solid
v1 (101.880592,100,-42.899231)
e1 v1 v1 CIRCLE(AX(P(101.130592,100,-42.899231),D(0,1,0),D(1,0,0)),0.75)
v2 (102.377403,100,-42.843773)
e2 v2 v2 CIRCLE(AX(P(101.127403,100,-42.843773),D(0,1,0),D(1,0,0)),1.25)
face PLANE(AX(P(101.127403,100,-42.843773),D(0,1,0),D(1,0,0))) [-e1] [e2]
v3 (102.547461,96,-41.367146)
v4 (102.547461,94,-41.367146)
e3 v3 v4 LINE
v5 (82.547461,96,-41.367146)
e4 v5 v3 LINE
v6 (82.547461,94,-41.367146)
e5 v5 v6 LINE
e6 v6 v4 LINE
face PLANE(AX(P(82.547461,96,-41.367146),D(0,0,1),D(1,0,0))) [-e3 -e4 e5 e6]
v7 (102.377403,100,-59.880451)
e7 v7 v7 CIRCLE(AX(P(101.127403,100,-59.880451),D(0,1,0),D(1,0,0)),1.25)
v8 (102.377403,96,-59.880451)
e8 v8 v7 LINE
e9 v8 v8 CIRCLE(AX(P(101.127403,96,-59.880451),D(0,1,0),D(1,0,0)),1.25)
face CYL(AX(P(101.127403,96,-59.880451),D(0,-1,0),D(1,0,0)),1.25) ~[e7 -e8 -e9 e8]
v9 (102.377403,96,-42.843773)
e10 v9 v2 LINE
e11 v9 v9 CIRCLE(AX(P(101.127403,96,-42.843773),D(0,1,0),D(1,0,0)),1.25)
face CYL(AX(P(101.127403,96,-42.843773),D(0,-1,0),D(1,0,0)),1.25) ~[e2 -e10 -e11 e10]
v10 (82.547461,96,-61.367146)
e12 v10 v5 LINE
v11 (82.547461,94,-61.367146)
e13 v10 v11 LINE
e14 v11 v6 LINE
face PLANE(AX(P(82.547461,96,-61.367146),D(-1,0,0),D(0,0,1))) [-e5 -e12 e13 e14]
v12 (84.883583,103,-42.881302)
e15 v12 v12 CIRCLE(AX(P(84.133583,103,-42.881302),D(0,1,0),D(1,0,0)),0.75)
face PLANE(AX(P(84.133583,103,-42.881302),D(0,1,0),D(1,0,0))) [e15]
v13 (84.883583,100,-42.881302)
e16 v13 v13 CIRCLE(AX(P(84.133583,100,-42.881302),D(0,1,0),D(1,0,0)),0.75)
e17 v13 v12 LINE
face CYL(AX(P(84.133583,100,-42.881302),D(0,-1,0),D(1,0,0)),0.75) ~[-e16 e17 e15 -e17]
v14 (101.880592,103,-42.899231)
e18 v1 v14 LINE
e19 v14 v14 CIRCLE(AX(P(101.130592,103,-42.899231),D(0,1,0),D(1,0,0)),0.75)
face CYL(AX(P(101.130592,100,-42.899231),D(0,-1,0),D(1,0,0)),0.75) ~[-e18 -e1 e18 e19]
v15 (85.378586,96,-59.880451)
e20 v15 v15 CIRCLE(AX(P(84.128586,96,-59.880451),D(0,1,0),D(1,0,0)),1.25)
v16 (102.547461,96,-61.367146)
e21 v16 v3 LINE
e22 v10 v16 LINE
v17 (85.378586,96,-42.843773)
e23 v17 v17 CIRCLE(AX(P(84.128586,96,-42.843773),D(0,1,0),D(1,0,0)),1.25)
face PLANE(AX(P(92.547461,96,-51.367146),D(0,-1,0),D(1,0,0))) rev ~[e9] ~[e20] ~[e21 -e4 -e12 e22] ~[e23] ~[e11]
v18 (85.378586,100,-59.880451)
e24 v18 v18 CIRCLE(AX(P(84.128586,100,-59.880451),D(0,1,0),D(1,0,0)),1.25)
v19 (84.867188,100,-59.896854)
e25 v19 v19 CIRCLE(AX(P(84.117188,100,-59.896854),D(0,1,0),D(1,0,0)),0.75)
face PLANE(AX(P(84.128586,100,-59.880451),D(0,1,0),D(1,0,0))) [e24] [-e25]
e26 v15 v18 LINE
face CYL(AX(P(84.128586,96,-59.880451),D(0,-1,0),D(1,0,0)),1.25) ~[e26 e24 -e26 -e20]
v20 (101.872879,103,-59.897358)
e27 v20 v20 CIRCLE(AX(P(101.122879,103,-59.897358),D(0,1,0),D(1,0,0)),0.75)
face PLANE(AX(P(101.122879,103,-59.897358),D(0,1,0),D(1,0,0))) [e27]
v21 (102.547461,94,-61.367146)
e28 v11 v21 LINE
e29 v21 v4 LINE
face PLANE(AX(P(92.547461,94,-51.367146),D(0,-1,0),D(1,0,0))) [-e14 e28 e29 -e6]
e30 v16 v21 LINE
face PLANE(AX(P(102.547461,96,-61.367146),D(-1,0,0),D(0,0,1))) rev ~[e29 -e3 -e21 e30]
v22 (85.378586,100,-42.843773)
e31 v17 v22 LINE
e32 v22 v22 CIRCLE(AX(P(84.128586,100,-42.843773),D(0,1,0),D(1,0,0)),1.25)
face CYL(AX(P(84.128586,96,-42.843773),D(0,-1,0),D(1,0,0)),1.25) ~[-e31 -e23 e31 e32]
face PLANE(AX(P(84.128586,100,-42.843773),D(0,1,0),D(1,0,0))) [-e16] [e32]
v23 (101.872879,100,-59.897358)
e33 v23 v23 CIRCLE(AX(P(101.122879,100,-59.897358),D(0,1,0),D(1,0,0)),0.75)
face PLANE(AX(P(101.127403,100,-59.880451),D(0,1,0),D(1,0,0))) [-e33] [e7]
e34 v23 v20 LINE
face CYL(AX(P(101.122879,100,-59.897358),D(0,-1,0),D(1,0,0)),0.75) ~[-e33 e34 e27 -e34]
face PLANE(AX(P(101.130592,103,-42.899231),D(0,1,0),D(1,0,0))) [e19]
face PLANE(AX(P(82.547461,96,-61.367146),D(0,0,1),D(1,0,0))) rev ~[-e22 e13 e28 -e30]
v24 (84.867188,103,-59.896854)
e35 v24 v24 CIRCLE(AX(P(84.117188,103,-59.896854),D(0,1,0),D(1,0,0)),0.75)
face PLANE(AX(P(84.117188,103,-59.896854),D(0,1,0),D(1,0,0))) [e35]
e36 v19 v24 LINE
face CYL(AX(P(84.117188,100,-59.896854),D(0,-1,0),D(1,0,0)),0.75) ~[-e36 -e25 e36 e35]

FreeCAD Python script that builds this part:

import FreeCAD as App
import Part
import Sketcher

V = App.Vector
Q = App.Units.Quantity


def add_polygon(sketch, points):
    """Adds a closed chain of lines whose ends are joined by coincident constraints."""
    first, n = sketch.GeometryCount, len(points)
    for a, b in zip(points, points[1:] + points[:1]):
        sketch.addGeometry(Part.LineSegment(App.Vector(*a, 0), App.Vector(*b, 0)), False)
    for i in range(n):
        sketch.addConstraint(Sketcher.Constraint("Coincident", first + i, 2, first + (i + 1) % n, 1))

doc = App.newDocument("Part")
body = doc.addObject("PartDesign::Body", "Body")

sketch1 = body.newObject("Sketcher::SketchObject", "Sketch")
sketch1.AttachmentSupport = (doc.getObject("XZ_Plane"), [""])
sketch1.MapMode = "FlatFace"
add_polygon(sketch1, [(82.547461, -41.367146), (82.547461, -61.367146), (102.547461, -61.367146), (102.547461, -41.367146)])
sketch1.addConstraint([
    Sketcher.Constraint("Vertical", 0),
    Sketcher.Constraint("Horizontal", 1),
    Sketcher.Constraint("Vertical", 2),
    Sketcher.Constraint("Horizontal", 3),
    Sketcher.Constraint("Equal", 3, 0),
    Sketcher.Constraint("DistanceX", 1, 1, 1, 2, Q("20 mm")),
    Sketcher.Constraint("DistanceX", -1, 1, 0, 2, Q("82.547461 mm")),
    Sketcher.Constraint("DistanceY", 0, 2, -1, 1, Q("61.367146 mm")),
])
pad1 = body.newObject("PartDesign::Pad", "Pad")
pad1.Profile = sketch1
pad1.Length = 2

sketch2 = body.newObject("Sketcher::SketchObject", "Sketch001")
sketch2.AttachmentSupport = (doc.getObject("XZ_Plane"), [""])
sketch2.MapMode = "FlatFace"
sketch2.addGeometry([
    Part.Circle(V(84.128586, -59.880451, 0), V(0, 0, 1), 1.25),
    Part.Circle(V(101.127403, -59.880451, 0), V(0, 0, 1), 1.25),
    Part.Circle(V(101.127403, -42.843773, 0), V(0, 0, 1), 1.25),
    Part.Circle(V(84.128586, -42.843773, 0), V(0, 0, 1), 1.25),
], False)
sketch2.addConstraint([
    Sketcher.Constraint("Equal", 0, 1),
    Sketcher.Constraint("Equal", 1, 2),
    Sketcher.Constraint("Equal", 2, 3),
    Sketcher.Constraint("Horizontal", 0, 3, 1, 3),
    Sketcher.Constraint("Horizontal", 2, 3, 3, 3),
    Sketcher.Constraint("Vertical", 1, 3, 2, 3),
    Sketcher.Constraint("Vertical", 0, 3, 3, 3),
    Sketcher.Constraint("Diameter", 0, Q("2.5 mm")),
    Sketcher.Constraint("DistanceY", 0, 3, -1, 1, Q("59.880451 mm")),
    Sketcher.Constraint("DistanceY", 1, 3, 2, 3, Q("17.036678 mm")),
    Sketcher.Constraint("DistanceX", -1, 1, 0, 3, Q("84.128586 mm")),
    Sketcher.Constraint("DistanceX", -1, 1, 1, 3, Q("101.127403 mm")),
])
pad2 = body.newObject("PartDesign::Pad", "Pad001")
pad2.Profile = sketch2
pad2.Length = 4
pad2.Reversed = True

sketch3 = body.newObject("Sketcher::SketchObject", "Sketch002")
sketch3.AttachmentSupport = (doc.getObject("XZ_Plane"), [""])
sketch3.MapMode = "FlatFace"
sketch3.AttachmentOffset = App.Placement(V(0, 0, -4), App.Rotation())
sketch3.addGeometry([
    Part.Circle(V(84.117188, -59.896854, 0), V(0, 0, 1), 0.75),
    Part.Circle(V(101.122879, -59.897358, 0), V(0, 0, 1), 0.75),
    Part.Circle(V(101.130592, -42.899231, 0), V(0, 0, 1), 0.75),
    Part.Circle(V(84.133583, -42.881302, 0), V(0, 0, 1), 0.75),
], False)
sketch3.addConstraint([
    Sketcher.Constraint("Equal", 0, 1),
    Sketcher.Constraint("Equal", 1, 2),
    Sketcher.Constraint("Equal", 2, 3),
    Sketcher.Constraint("Diameter", 0, Q("1.5 mm")),
    Sketcher.Constraint("DistanceY", 3, 3, -1, 1, Q("42.881302 mm")),
    Sketcher.Constraint("DistanceX", -1, 1, 0, 3, Q("84.117188 mm")),
    Sketcher.Constraint("DistanceX", -1, 1, 1, 3, Q("101.122879 mm")),
    Sketcher.Constraint("DistanceX", -1, 1, 2, 3, Q("101.130592 mm")),
    Sketcher.Constraint("DistanceY", 2, 3, -1, 1, Q("42.899231 mm")),
    Sketcher.Constraint("DistanceX", 3, 3, 2, 3, Q("16.997009 mm")),
    Sketcher.Constraint("DistanceY", 0, 3, 3, 3, Q("17.015552 mm")),
    Sketcher.Constraint("DistanceY", 1, 3, -1, 1, Q("59.897358 mm")),
])
pad3 = body.newObject("PartDesign::Pad", "Pad002")
pad3.Profile = sketch3
pad3.Length = 3
pad3.Reversed = True
body2 = doc.addObject("PartDesign::Body", "Body001")
doc.recompute()

body.Placement = App.Placement(V(0, 96, 0), App.Rotation(V(0, 0, 1), 0))
boolean = body2.newObject("PartDesign::Boolean", "Boolean")
boolean.Type = "Fuse"
boolean.addObjects([body])

doc.recompute()
